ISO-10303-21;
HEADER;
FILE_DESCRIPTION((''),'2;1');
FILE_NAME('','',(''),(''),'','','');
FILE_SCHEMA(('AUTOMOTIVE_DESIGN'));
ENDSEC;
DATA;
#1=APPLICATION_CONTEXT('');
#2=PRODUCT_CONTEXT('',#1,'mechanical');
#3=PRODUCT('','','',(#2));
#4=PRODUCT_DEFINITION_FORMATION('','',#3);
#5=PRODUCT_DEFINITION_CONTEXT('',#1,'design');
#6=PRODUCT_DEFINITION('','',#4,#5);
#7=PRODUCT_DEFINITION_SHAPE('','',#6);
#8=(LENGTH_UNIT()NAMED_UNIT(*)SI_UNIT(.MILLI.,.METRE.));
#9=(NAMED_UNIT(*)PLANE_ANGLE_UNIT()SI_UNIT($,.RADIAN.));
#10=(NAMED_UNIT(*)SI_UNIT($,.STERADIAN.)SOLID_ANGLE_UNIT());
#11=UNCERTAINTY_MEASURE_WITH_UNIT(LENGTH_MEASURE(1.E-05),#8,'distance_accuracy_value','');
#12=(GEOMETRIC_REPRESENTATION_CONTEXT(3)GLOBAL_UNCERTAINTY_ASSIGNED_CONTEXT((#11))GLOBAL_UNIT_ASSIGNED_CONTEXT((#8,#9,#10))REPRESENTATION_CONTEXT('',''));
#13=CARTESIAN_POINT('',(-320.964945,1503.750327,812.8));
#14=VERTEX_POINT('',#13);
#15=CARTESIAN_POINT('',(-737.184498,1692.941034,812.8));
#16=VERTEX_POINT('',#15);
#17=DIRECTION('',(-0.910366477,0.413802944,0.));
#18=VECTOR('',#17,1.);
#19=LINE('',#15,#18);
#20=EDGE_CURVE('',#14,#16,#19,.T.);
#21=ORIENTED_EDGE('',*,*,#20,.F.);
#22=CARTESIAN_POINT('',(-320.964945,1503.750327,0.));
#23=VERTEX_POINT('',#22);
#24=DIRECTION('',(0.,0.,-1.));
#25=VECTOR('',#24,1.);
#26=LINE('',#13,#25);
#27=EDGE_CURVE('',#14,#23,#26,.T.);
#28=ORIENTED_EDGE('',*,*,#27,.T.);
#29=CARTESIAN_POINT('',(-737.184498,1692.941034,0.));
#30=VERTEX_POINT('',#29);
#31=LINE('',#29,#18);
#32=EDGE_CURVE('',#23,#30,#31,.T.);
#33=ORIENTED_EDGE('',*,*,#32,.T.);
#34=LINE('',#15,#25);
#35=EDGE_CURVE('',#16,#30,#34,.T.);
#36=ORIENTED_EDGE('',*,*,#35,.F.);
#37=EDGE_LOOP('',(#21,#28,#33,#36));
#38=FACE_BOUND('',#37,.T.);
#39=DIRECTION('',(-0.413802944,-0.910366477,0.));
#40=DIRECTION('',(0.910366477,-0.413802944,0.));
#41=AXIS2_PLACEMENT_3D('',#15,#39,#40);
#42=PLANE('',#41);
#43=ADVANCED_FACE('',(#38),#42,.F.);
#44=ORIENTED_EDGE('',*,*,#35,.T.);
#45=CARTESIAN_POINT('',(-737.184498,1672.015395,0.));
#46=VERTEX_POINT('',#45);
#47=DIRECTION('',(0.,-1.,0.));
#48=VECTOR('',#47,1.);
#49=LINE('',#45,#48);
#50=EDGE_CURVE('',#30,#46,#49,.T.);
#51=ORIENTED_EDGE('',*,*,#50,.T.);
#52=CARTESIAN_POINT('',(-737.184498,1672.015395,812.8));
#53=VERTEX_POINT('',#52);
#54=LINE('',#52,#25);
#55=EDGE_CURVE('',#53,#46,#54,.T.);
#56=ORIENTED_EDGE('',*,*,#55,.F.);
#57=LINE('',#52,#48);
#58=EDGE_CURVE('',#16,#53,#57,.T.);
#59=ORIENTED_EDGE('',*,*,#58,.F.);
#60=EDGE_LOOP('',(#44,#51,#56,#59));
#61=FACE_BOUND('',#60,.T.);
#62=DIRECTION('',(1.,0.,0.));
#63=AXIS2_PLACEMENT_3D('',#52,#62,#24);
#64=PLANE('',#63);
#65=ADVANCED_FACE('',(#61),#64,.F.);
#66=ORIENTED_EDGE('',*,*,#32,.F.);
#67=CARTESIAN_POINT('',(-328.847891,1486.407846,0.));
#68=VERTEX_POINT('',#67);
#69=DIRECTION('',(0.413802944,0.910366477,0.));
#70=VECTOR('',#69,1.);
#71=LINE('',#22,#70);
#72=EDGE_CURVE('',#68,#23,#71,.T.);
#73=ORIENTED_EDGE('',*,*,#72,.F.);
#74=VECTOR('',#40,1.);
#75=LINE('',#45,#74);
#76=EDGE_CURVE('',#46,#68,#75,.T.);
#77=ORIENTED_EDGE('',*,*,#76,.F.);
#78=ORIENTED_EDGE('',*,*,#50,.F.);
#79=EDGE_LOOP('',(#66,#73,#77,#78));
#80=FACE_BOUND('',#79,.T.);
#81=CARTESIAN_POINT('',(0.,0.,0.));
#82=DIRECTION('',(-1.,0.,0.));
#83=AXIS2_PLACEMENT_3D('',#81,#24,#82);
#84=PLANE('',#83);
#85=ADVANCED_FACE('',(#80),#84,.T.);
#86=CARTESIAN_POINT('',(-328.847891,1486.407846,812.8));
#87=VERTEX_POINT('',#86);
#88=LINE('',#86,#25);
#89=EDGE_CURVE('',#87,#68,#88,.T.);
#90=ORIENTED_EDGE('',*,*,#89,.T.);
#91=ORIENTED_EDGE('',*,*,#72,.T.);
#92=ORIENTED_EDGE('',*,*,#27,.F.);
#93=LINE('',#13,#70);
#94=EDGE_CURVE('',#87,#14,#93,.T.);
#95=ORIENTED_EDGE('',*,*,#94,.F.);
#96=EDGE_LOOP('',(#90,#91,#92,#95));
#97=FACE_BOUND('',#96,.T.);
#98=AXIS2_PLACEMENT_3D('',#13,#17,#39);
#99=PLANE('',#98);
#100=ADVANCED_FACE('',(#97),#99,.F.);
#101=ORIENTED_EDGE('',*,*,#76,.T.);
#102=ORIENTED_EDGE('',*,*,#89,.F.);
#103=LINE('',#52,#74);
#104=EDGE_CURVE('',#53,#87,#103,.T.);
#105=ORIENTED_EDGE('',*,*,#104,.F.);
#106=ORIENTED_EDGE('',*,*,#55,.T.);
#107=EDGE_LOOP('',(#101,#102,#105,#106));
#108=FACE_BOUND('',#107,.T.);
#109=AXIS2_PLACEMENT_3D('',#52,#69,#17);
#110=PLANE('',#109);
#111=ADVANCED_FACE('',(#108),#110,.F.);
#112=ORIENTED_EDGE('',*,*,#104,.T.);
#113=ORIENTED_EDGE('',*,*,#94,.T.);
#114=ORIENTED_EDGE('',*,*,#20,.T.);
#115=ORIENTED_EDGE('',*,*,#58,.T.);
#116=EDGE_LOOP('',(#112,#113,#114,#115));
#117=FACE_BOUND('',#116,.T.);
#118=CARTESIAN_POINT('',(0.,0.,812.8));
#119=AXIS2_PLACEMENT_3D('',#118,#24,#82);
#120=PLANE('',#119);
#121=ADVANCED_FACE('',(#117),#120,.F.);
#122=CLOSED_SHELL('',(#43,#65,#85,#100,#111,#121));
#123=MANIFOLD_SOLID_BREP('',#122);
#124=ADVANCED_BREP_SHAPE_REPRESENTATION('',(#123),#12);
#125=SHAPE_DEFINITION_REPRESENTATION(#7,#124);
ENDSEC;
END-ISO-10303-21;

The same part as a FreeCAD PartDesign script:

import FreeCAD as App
import Part
import Sketcher
from FreeCAD import Vector
Q = App.Units.Quantity

doc = App.newDocument("Part")
params = doc.addObject("Spreadsheet::Sheet", "Params")
for row, (alias, value) in enumerate([
    ("sketch1_length", "18 in"),
    ("sketch1_length2", "0.75 in"),
    ("pad1_length", "32 in"),
], start=1):
    params.set(f"A{row}", alias)
    params.set(f"B{row}", "=" + value)
    params.setAlias(f"B{row}", alias)

body = doc.addObject("PartDesign::Body", "Body")

# Sketch on XY plane
sketch1 = body.newObject("Sketcher::SketchObject", "Sketch")
sketch1.AttachmentSupport = (doc.getObject("XY_Plane"), [""])
sketch1.MapMode = "FlatFace"
sketch1.addGeometry(Part.LineSegment(Vector(-737, 1693, 0), Vector(-737, 1672, 0)), False)
sketch1.addGeometry(Part.LineSegment(Vector(-737, 1672, 0), Vector(-329, 1486, 0)), False)
sketch1.addGeometry(Part.LineSegment(Vector(-329, 1486, 0), Vector(-321, 1504, 0)), False)
sketch1.addGeometry(Part.LineSegment(Vector(-321, 1504, 0), Vector(-737, 1693, 0)), False)
sketch1.addConstraint(Sketcher.Constraint("Coincident", 0, 2, 1, 1))
sketch1.addConstraint(Sketcher.Constraint("Coincident", 1, 2, 2, 1))
sketch1.addConstraint(Sketcher.Constraint("Coincident", 2, 2, 3, 1))
sketch1.addConstraint(Sketcher.Constraint("Coincident", 3, 2, 0, 1))
sketch1.addConstraint(Sketcher.Constraint("Vertical", 0))
sketch1.addConstraint(Sketcher.Constraint("Perpendicular", 1, 2))
sketch1.addConstraint(Sketcher.Constraint("Perpendicular", 2, 3))
sketch1.addConstraint(Sketcher.Constraint("Distance", 3, Q("18 in")))
sketch1.addConstraint(Sketcher.Constraint("Distance", 2, Q("0.75 in")))
sketch1.addConstraint(Sketcher.Constraint("DistanceY", 0, 2, 0, 1, 20.925639))
sketch1.addConstraint(Sketcher.Constraint("DistanceX", 0, 2, -1, 1, 737.184498))
sketch1.addConstraint(Sketcher.Constraint("DistanceY", -1, 1, 0, 2, 1672.015395))
sketch1.setExpression("Constraints[7]", "Params.sketch1_length")
sketch1.setExpression("Constraints[8]", "Params.sketch1_length2")
pad1 = body.newObject("PartDesign::Pad", "Pad")
pad1.Profile = sketch1
pad1.setExpression("Length", "Params.pad1_length")

doc.recompute()
